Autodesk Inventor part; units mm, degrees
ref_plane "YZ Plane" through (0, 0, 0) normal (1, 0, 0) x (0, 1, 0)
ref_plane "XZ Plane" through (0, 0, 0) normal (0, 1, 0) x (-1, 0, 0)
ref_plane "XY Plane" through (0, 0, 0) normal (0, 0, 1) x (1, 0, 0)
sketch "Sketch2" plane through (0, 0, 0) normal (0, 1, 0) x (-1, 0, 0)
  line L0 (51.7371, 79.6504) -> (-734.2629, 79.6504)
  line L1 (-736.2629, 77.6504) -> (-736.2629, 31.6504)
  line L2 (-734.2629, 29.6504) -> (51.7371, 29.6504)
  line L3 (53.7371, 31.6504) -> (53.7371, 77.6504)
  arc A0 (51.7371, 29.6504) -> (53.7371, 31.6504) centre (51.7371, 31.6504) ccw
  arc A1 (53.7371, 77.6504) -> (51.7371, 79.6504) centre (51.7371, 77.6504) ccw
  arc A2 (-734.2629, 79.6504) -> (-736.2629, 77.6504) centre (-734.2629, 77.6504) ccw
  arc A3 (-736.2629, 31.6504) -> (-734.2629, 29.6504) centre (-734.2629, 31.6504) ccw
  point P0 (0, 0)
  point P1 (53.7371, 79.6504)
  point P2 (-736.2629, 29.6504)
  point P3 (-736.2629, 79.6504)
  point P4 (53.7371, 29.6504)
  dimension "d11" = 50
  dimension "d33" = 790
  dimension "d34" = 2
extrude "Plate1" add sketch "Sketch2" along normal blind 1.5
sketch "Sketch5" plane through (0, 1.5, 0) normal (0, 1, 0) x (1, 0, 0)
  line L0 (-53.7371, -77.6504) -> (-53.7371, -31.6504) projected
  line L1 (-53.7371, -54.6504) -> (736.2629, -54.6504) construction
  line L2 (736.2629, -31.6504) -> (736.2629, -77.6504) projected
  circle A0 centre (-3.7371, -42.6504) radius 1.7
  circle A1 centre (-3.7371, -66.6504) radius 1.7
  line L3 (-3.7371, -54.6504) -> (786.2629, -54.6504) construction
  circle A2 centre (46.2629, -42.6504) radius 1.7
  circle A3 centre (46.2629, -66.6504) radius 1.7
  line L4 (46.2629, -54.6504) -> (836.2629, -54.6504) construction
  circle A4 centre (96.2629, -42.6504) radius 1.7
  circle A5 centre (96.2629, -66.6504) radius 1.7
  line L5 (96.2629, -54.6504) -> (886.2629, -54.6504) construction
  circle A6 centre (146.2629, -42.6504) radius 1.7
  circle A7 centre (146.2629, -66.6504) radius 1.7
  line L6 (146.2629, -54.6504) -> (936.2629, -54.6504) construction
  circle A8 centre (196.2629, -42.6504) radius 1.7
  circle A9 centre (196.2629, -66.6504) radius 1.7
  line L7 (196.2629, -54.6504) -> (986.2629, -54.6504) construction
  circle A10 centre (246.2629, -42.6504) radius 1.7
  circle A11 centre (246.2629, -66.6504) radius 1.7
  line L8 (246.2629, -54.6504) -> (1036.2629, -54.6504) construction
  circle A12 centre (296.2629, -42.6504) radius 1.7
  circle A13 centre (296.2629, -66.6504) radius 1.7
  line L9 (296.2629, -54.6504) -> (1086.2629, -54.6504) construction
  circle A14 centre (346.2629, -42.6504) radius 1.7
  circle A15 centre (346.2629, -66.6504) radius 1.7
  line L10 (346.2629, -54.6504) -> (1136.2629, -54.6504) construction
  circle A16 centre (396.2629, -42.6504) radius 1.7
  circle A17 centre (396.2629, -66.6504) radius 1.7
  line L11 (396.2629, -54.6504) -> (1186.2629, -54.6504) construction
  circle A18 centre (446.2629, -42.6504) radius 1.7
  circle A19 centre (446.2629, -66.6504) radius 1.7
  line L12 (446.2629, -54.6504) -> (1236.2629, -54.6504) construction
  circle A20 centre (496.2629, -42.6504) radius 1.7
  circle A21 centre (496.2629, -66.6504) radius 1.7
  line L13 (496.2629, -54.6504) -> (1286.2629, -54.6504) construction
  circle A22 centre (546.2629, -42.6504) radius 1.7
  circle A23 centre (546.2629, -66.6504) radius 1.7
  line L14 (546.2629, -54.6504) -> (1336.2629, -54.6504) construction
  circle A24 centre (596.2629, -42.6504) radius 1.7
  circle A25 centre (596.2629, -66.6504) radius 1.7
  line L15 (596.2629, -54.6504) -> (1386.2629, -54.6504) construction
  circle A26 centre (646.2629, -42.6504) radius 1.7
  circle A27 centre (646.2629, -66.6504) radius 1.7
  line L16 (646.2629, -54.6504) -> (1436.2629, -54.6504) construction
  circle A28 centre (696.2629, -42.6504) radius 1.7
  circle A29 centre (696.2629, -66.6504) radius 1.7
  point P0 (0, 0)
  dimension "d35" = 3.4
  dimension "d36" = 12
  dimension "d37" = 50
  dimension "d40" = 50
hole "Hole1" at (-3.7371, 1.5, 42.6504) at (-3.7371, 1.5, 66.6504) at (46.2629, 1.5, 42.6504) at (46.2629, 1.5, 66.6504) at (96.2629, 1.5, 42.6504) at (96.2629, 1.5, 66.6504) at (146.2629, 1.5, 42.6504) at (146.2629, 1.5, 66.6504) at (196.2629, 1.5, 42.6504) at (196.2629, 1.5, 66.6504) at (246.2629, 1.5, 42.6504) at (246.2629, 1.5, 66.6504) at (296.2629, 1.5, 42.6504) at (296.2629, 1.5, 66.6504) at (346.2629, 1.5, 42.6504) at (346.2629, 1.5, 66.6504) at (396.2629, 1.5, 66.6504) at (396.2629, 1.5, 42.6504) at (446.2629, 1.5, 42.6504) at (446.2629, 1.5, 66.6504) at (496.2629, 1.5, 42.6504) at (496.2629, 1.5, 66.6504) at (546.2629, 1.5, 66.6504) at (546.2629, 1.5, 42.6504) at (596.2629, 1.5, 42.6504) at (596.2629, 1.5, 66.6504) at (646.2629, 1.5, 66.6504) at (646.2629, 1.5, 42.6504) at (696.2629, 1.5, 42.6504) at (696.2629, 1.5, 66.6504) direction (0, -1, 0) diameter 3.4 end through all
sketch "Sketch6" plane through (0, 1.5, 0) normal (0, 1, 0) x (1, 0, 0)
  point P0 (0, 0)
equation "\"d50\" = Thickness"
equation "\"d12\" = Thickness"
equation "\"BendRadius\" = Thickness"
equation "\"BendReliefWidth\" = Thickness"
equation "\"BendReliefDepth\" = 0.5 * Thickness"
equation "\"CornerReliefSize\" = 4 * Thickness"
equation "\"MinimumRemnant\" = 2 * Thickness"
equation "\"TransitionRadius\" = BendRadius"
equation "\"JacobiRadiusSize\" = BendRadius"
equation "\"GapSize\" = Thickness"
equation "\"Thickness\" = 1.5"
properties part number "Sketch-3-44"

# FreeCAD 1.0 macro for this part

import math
import FreeCAD as App
import Part
import Sketcher
from FreeCAD import Vector
Q = App.Units.Quantity

doc = App.newDocument("Part")
body = doc.addObject("PartDesign::Body", "Body")

# Sketch on XZ plane
sketch1 = body.newObject("Sketcher::SketchObject", "Sketch")
sketch1.AttachmentSupport = (doc.getObject("XZ_Plane"), [""])
sketch1.MapMode = "FlatFace"
sketch1.addGeometry(Part.ArcOfCircle(Part.Circle(Vector(-51.7371, 77.6504, 0), Vector(0, 0, 1), 2), math.radians(90), math.radians(180)), False)
sketch1.addGeometry(Part.LineSegment(Vector(-51.7371, 79.6504, 0), Vector(734.2629, 79.6504, 0)), False)
sketch1.addGeometry(Part.ArcOfCircle(Part.Circle(Vector(734.2629, 77.6504, 0), Vector(0, 0, 1), 2), math.radians(0), math.radians(90)), False)
sketch1.addGeometry(Part.LineSegment(Vector(736.2629, 77.6504, 0), Vector(736.2629, 31.6504, 0)), False)
sketch1.addGeometry(Part.ArcOfCircle(Part.Circle(Vector(734.2629, 31.6504, 0), Vector(0, 0, 1), 2), math.radians(-90), math.radians(0)), False)
sketch1.addGeometry(Part.LineSegment(Vector(734.2629, 29.6504, 0), Vector(-51.7371, 29.6504, 0)), False)
sketch1.addGeometry(Part.ArcOfCircle(Part.Circle(Vector(-51.7371, 31.6504, 0), Vector(0, 0, 1), 2), math.radians(180), math.radians(270)), False)
sketch1.addGeometry(Part.LineSegment(Vector(-53.7371, 31.6504, 0), Vector(-53.7371, 77.6504, 0)), False)
sketch1.addConstraint(Sketcher.Constraint("Tangent", 0, 1, 1, 1))
sketch1.addConstraint(Sketcher.Constraint("Tangent", 1, 2, 2, 2))
sketch1.addConstraint(Sketcher.Constraint("Tangent", 2, 1, 3, 1))
sketch1.addConstraint(Sketcher.Constraint("Tangent", 3, 2, 4, 2))
sketch1.addConstraint(Sketcher.Constraint("Tangent", 4, 1, 5, 1))
sketch1.addConstraint(Sketcher.Constraint("Tangent", 5, 2, 6, 2))
sketch1.addConstraint(Sketcher.Constraint("Tangent", 6, 1, 7, 1))
sketch1.addConstraint(Sketcher.Constraint("Tangent", 7, 2, 0, 2))
sketch1.addConstraint(Sketcher.Constraint("Horizontal", 1))
sketch1.addConstraint(Sketcher.Constraint("Vertical", 3))
sketch1.addConstraint(Sketcher.Constraint("Horizontal", 5))
sketch1.addConstraint(Sketcher.Constraint("Vertical", 7))
sketch1.addConstraint(Sketcher.Constraint("Equal", 0, 2))
sketch1.addConstraint(Sketcher.Constraint("Equal", 2, 4))
sketch1.addConstraint(Sketcher.Constraint("Equal", 4, 6))
sketch1.addConstraint(Sketcher.Constraint("Radius", 0, Q("2 mm")))
sketch1.addConstraint(Sketcher.Constraint("DistanceY", 4, 1, 1, 2, Q("50 mm")))
sketch1.addConstraint(Sketcher.Constraint("DistanceX", 1, 1, 1, 2, Q("786 mm")))
sketch1.addConstraint(Sketcher.Constraint("DistanceX", 0, 3, -1, 1, Q("51.737 mm")))
sketch1.addConstraint(Sketcher.Constraint("DistanceY", -1, 1, 0, 3, Q("77.6504 mm")))
pad1 = body.newObject("PartDesign::Pad", "Pad")
pad1.Profile = sketch1
pad1.Length = 1.5
pad1.Reversed = True

# Sketch on XZ plane
sketch2 = body.newObject("Sketcher::SketchObject", "Sketch001")
sketch2.AttachmentSupport = (doc.getObject("XZ_Plane"), [""])
sketch2.MapMode = "FlatFace"
sketch2.AttachmentOffset = App.Placement(Vector(0, 0, -1.5), App.Rotation())
sketch2.addGeometry(Part.Circle(Vector(-3.7371, 42.6504, 0), Vector(0, 0, 1), 1.7), False)
sketch2.addGeometry(Part.Circle(Vector(-3.7371, 66.6504, 0), Vector(0, 0, 1), 1.7), False)
sketch2.addGeometry(Part.Circle(Vector(46.2629, 42.6504, 0), Vector(0, 0, 1), 1.7), False)
sketch2.addGeometry(Part.Circle(Vector(46.2629, 66.6504, 0), Vector(0, 0, 1), 1.7), False)
sketch2.addGeometry(Part.Circle(Vector(96.2629, 42.6504, 0), Vector(0, 0, 1), 1.7), False)
sketch2.addGeometry(Part.Circle(Vector(96.2629, 66.6504, 0), Vector(0, 0, 1), 1.7), False)
sketch2.addGeometry(Part.Circle(Vector(146.2629, 42.6504, 0), Vector(0, 0, 1), 1.7), False)
sketch2.addGeometry(Part.Circle(Vector(146.2629, 66.6504, 0), Vector(0, 0, 1), 1.7), False)
sketch2.addGeometry(Part.Circle(Vector(196.2629, 42.6504, 0), Vector(0, 0, 1), 1.7), False)
sketch2.addGeometry(Part.Circle(Vector(196.2629, 66.6504, 0), Vector(0, 0, 1), 1.7), False)
sketch2.addGeometry(Part.Circle(Vector(246.2629, 42.6504, 0), Vector(0, 0, 1), 1.7), False)
sketch2.addGeometry(Part.Circle(Vector(246.2629, 66.6504, 0), Vector(0, 0, 1), 1.7), False)
sketch2.addGeometry(Part.Circle(Vector(296.2629, 42.6504, 0), Vector(0, 0, 1), 1.7), False)
sketch2.addGeometry(Part.Circle(Vector(296.2629, 66.6504, 0), Vector(0, 0, 1), 1.7), False)
sketch2.addGeometry(Part.Circle(Vector(346.2629, 42.6504, 0), Vector(0, 0, 1), 1.7), False)
sketch2.addGeometry(Part.Circle(Vector(346.2629, 66.6504, 0), Vector(0, 0, 1), 1.7), False)
sketch2.addGeometry(Part.Circle(Vector(396.2629, 66.6504, 0), Vector(0, 0, 1), 1.7), False)
sketch2.addGeometry(Part.Circle(Vector(396.2629, 42.6504, 0), Vector(0, 0, 1), 1.7), False)
sketch2.addGeometry(Part.Circle(Vector(446.2629, 42.6504, 0), Vector(0, 0, 1), 1.7), False)
sketch2.addGeometry(Part.Circle(Vector(446.2629, 66.6504, 0), Vector(0, 0, 1), 1.7), False)
sketch2.addGeometry(Part.Circle(Vector(496.2629, 42.6504, 0), Vector(0, 0, 1), 1.7), False)
sketch2.addGeometry(Part.Circle(Vector(496.2629, 66.6504, 0), Vector(0, 0, 1), 1.7), False)
sketch2.addGeometry(Part.Circle(Vector(546.2629, 66.6504, 0), Vector(0, 0, 1), 1.7), False)
sketch2.addGeometry(Part.Circle(Vector(546.2629, 42.6504, 0), Vector(0, 0, 1), 1.7), False)
sketch2.addGeometry(Part.Circle(Vector(596.2629, 42.6504, 0), Vector(0, 0, 1), 1.7), False)
sketch2.addGeometry(Part.Circle(Vector(596.2629, 66.6504, 0), Vector(0, 0, 1), 1.7), False)
sketch2.addGeometry(Part.Circle(Vector(646.2629, 66.6504, 0), Vector(0, 0, 1), 1.7), False)
sketch2.addGeometry(Part.Circle(Vector(646.2629, 42.6504, 0), Vector(0, 0, 1), 1.7), False)
sketch2.addGeometry(Part.Circle(Vector(696.2629, 42.6504, 0), Vector(0, 0, 1), 1.7), False)
sketch2.addGeometry(Part.Circle(Vector(696.2629, 66.6504, 0), Vector(0, 0, 1), 1.7), False)
sketch2.addConstraint(Sketcher.Constraint("Equal", 0, 1))
sketch2.addConstraint(Sketcher.Constraint("Equal", 1, 2))
sketch2.addConstraint(Sketcher.Constraint("Equal", 2, 3))
sketch2.addConstraint(Sketcher.Constraint("Equal", 3, 4))
sketch2.addConstraint(Sketcher.Constraint("Equal", 4, 5))
sketch2.addConstraint(Sketcher.Constraint("Equal", 5, 6))
sketch2.addConstraint(Sketcher.Constraint("Equal", 6, 7))
sketch2.addConstraint(Sketcher.Constraint("Equal", 7, 8))
sketch2.addConstraint(Sketcher.Constraint("Equal", 8, 9))
sketch2.addConstraint(Sketcher.Constraint("Equal", 9, 10))
sketch2.addConstraint(Sketcher.Constraint("Equal", 10, 11))
sketch2.addConstraint(Sketcher.Constraint("Equal", 11, 12))
sketch2.addConstraint(Sketcher.Constraint("Equal", 12, 13))
sketch2.addConstraint(Sketcher.Constraint("Equal", 13, 14))
sketch2.addConstraint(Sketcher.Constraint("Equal", 14, 15))
sketch2.addConstraint(Sketcher.Constraint("Equal", 15, 16))
sketch2.addConstraint(Sketcher.Constraint("Equal", 16, 17))
sketch2.addConstraint(Sketcher.Constraint("Equal", 17, 18))
sketch2.addConstraint(Sketcher.Constraint("Equal", 18, 19))
sketch2.addConstraint(Sketcher.Constraint("Equal", 19, 20))
sketch2.addConstraint(Sketcher.Constraint("Equal", 20, 21))
sketch2.addConstraint(Sketcher.Constraint("Equal", 21, 22))
sketch2.addConstraint(Sketcher.Constraint("Equal", 22, 23))
sketch2.addConstraint(Sketcher.Constraint("Equal", 23, 24))
sketch2.addConstraint(Sketcher.Constraint("Equal", 24, 25))
sketch2.addConstraint(Sketcher.Constraint("Equal", 25, 26))
sketch2.addConstraint(Sketcher.Constraint("Equal", 26, 27))
sketch2.addConstraint(Sketcher.Constraint("Equal", 27, 28))
sketch2.addConstraint(Sketcher.Constraint("Equal", 28, 29))
sketch2.addConstraint(Sketcher.Constraint("Horizontal", 0, 3, 2, 3))
sketch2.addConstraint(Sketcher.Constraint("Horizontal", 1, 3, 3, 3))
sketch2.addConstraint(Sketcher.Constraint("Horizontal", 2, 3, 4, 3))
sketch2.addConstraint(Sketcher.Constraint("Horizontal", 3, 3, 5, 3))
sketch2.addConstraint(Sketcher.Constraint("Horizontal", 4, 3, 6, 3))
sketch2.addConstraint(Sketcher.Constraint("Horizontal", 5, 3, 7, 3))
sketch2.addConstraint(Sketcher.Constraint("Horizontal", 6, 3, 8, 3))
sketch2.addConstraint(Sketcher.Constraint("Horizontal", 7, 3, 9, 3))
sketch2.addConstraint(Sketcher.Constraint("Horizontal", 8, 3, 10, 3))
sketch2.addConstraint(Sketcher.Constraint("Horizontal", 9, 3, 11, 3))
sketch2.addConstraint(Sketcher.Constraint("Horizontal", 10, 3, 12, 3))
sketch2.addConstraint(Sketcher.Constraint("Horizontal", 11, 3, 13, 3))
sketch2.addConstraint(Sketcher.Constraint("Horizontal", 12, 3, 14, 3))
sketch2.addConstraint(Sketcher.Constraint("Horizontal", 13, 3, 15, 3))
sketch2.addConstraint(Sketcher.Constraint("Horizontal", 15, 3, 16, 3))
sketch2.addConstraint(Sketcher.Constraint("Horizontal", 14, 3, 17, 3))
sketch2.addConstraint(Sketcher.Constraint("Horizontal", 17, 3, 18, 3))
sketch2.addConstraint(Sketcher.Constraint("Horizontal", 16, 3, 19, 3))
sketch2.addConstraint(Sketcher.Constraint("Horizontal", 18, 3, 20, 3))
sketch2.addConstraint(Sketcher.Constraint("Horizontal", 19, 3, 21, 3))
sketch2.addConstraint(Sketcher.Constraint("Horizontal", 21, 3, 22, 3))
sketch2.addConstraint(Sketcher.Constraint("Horizontal", 20, 3, 23, 3))
sketch2.addConstraint(Sketcher.Constraint("Horizontal", 23, 3, 24, 3))
sketch2.addConstraint(Sketcher.Constraint("Horizontal", 22, 3, 25, 3))
sketch2.addConstraint(Sketcher.Constraint("Horizontal", 25, 3, 26, 3))
sketch2.addConstraint(Sketcher.Constraint("Horizontal", 24, 3, 27, 3))
sketch2.addConstraint(Sketcher.Constraint("Horizontal", 27, 3, 28, 3))
sketch2.addConstraint(Sketcher.Constraint("Horizontal", 26, 3, 29, 3))
sketch2.addConstraint(Sketcher.Constraint("Vertical", 0, 3, 1, 3))
sketch2.addConstraint(Sketcher.Constraint("Vertical", 2, 3, 3, 3))
sketch2.addConstraint(Sketcher.Constraint("Vertical", 4, 3, 5, 3))
sketch2.addConstraint(Sketcher.Constraint("Vertical", 6, 3, 7, 3))
sketch2.addConstraint(Sketcher.Constraint("Vertical", 8, 3, 9, 3))
sketch2.addConstraint(Sketcher.Constraint("Vertical", 10, 3, 11, 3))
sketch2.addConstraint(Sketcher.Constraint("Vertical", 12, 3, 13, 3))
sketch2.addConstraint(Sketcher.Constraint("Vertical", 14, 3, 15, 3))
sketch2.addConstraint(Sketcher.Constraint("Vertical", 16, 3, 17, 3))
sketch2.addConstraint(Sketcher.Constraint("Vertical", 18, 3, 19, 3))
sketch2.addConstraint(Sketcher.Constraint("Vertical", 20, 3, 21, 3))
sketch2.addConstraint(Sketcher.Constraint("Vertical", 22, 3, 23, 3))
sketch2.addConstraint(Sketcher.Constraint("Vertical", 24, 3, 25, 3))
sketch2.addConstraint(Sketcher.Constraint("Vertical", 26, 3, 27, 3))
sketch2.addConstraint(Sketcher.Constraint("Vertical", 28, 3, 29, 3))
sketch2.addConstraint(Sketcher.Constraint("Diameter", 0, Q("3.4 mm")))
sketch2.addConstraint(Sketcher.Constraint("DistanceY", 0, 3, 1, 3, Q("24 mm")))
sketch2.addConstraint(Sketcher.Constraint("DistanceX", 0, 3, 2, 3, Q("50 mm")))
sketch2.addConstraint(Sketcher.Constraint("DistanceX", 2, 3, 4, 3, Q("50 mm")))
sketch2.addConstraint(Sketcher.Constraint("DistanceX", 4, 3, 6, 3, Q("50 mm")))
sketch2.addConstraint(Sketcher.Constraint("DistanceX", 6, 3, 8, 3, Q("50 mm")))
sketch2.addConstraint(Sketcher.Constraint("DistanceX", 8, 3, 10, 3, Q("50 mm")))
sketch2.addConstraint(Sketcher.Constraint("DistanceX", 10, 3, 12, 3, Q("50 mm")))
sketch2.addConstraint(Sketcher.Constraint("DistanceX", 12, 3, 14, 3, Q("50 mm")))
sketch2.addConstraint(Sketcher.Constraint("DistanceX", 15, 3, 16, 3, Q("50 mm")))
sketch2.addConstraint(Sketcher.Constraint("DistanceX", 17, 3, 18, 3, Q("50 mm")))
sketch2.addConstraint(Sketcher.Constraint("DistanceX", 18, 3, 20, 3, Q("50 mm")))
sketch2.addConstraint(Sketcher.Constraint("DistanceX", 21, 3, 22, 3, Q("50 mm")))
sketch2.addConstraint(Sketcher.Constraint("DistanceX", 23, 3, 24, 3, Q("50 mm")))
sketch2.addConstraint(Sketcher.Constraint("DistanceX", 25, 3, 26, 3, Q("50 mm")))
sketch2.addConstraint(Sketcher.Constraint("DistanceX", 27, 3, 28, 3, Q("50 mm")))
sketch2.addConstraint(Sketcher.Constraint("DistanceX", 0, 3, -1, 1, Q("3.737 mm")))
sketch2.addConstraint(Sketcher.Constraint("DistanceY", -1, 1, 0, 3, Q("42.6504 mm")))
doc.recompute()
hole = body.newObject("PartDesign::Hole", "Hole")
hole.Profile = sketch2
hole.ThreadType = "None"
hole.Diameter = 3.4
hole.DepthType = "ThroughAll"
hole.Reversed = True

doc.recompute()
